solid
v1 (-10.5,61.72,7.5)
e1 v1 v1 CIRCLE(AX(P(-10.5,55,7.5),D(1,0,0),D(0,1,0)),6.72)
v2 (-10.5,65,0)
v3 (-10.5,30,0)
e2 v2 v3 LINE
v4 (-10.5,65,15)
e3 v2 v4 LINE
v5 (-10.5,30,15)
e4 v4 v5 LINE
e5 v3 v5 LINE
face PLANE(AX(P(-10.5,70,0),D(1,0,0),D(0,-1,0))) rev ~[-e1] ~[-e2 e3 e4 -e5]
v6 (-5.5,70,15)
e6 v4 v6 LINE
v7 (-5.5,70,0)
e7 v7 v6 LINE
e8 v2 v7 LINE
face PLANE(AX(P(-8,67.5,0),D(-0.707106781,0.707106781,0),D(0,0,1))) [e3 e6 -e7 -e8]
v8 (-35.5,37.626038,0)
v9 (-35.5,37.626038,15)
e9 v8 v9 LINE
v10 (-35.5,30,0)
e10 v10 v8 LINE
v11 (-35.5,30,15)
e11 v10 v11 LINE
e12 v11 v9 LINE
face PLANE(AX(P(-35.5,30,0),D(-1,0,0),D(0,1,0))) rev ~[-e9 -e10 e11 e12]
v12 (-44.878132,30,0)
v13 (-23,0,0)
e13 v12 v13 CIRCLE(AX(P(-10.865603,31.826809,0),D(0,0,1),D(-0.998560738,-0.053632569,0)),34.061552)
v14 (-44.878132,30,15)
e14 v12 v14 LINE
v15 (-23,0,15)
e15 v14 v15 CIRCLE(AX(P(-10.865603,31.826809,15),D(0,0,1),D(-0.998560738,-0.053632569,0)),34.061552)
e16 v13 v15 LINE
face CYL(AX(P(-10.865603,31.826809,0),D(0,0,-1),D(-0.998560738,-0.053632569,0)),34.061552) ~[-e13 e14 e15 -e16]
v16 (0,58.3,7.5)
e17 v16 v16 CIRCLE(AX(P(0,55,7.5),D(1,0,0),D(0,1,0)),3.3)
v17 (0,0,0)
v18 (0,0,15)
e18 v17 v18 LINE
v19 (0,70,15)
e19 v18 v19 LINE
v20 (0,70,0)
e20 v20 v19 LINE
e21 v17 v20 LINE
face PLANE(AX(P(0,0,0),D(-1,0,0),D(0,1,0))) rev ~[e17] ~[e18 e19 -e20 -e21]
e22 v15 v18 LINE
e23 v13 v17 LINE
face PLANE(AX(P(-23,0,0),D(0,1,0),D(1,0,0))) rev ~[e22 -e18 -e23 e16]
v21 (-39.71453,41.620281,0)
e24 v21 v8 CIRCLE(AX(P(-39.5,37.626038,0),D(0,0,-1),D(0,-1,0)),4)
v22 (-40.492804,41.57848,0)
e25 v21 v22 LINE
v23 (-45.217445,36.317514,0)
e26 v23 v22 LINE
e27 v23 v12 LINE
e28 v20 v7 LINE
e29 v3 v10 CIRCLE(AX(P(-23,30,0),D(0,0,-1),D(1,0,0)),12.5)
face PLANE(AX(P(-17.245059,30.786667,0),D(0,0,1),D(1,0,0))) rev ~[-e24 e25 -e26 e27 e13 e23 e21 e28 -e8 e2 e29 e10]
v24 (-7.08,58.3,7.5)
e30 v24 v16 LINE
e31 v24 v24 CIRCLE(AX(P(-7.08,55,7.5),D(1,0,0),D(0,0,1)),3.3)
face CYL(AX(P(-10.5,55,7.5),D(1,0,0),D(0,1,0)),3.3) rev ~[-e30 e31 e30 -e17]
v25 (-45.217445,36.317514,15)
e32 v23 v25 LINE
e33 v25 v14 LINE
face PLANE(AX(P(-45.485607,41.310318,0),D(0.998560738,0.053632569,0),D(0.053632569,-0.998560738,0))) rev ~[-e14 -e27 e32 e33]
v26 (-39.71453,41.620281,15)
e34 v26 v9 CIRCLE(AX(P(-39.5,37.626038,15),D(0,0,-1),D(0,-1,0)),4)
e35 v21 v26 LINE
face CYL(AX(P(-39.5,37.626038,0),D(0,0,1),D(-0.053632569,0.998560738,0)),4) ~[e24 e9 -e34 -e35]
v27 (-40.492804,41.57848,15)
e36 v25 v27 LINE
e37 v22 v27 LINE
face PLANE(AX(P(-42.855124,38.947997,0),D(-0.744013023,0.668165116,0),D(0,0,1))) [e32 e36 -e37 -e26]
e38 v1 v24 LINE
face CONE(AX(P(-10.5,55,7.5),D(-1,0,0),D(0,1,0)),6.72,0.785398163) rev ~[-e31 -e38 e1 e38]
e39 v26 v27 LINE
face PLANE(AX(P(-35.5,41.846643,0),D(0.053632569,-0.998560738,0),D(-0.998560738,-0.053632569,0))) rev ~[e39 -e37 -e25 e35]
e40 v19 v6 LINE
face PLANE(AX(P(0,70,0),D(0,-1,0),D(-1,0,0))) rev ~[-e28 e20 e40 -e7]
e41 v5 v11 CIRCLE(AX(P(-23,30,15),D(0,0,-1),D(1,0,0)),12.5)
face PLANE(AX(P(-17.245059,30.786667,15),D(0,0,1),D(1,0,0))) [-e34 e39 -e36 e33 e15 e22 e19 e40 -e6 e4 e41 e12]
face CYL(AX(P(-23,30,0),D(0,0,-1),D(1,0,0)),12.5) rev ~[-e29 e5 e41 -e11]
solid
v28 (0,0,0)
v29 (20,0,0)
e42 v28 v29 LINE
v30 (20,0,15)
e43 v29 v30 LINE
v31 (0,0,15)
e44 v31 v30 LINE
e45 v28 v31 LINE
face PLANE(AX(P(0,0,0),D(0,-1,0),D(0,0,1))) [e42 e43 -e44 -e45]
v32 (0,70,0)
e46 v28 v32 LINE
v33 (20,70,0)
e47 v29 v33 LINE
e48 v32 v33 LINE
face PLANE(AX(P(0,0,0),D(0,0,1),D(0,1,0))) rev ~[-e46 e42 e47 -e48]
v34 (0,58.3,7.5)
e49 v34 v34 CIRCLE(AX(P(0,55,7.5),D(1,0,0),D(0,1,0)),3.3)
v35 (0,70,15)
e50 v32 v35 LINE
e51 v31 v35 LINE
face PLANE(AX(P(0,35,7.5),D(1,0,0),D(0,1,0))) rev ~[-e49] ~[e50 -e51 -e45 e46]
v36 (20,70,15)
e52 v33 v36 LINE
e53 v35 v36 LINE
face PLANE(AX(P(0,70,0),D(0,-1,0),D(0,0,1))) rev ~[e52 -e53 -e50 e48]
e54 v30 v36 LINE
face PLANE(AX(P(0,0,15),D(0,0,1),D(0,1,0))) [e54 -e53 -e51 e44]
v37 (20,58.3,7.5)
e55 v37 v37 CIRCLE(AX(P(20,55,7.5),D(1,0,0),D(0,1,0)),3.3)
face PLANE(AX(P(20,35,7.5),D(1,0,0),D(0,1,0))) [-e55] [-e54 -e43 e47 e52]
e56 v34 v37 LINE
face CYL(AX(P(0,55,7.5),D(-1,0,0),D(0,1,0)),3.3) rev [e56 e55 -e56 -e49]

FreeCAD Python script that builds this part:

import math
import FreeCAD as App
import Part
import Sketcher
from FreeCAD import Vector


def edges_at(feature, points):
    """Names of the edges that pass closest to the given points."""
    edges = feature.Shape.Edges
    near = lambda p: min(range(len(edges)), key=lambda i: edges[i].distToShape(Part.Vertex(*p))[0])
    return sorted({f"Edge{near(p) + 1}" for p in points})

doc = App.newDocument("Part")
body = doc.addObject("PartDesign::Body", "Body")

sketch1 = doc.addObject("Sketcher::SketchObject", "Sketch")
body.addObject(sketch1)
sketch1.AttachmentSupport = (doc.XY_Plane, [""])
sketch1.MapMode = "FlatFace"
sketch1.addGeometry([
    Part.LineSegment(Vector(-23, 0, 0), Vector(0, 0, 0)),
    Part.LineSegment(Vector(0, 0, 0), Vector(0, 70, 0)),
    Part.LineSegment(Vector(0, 70, 0), Vector(-10, 70, 0)),
    Part.LineSegment(Vector(-10, 70, 0), Vector(-10, 30, 0)),
    Part.ArcOfCircle(Part.Circle(Vector(-23, 30, 0), Vector(0, 0, 1), 12), math.radians(180), math.radians(360)),
    Part.LineSegment(Vector(-36, 30, 0), Vector(-36, 42, 0)),
    Part.LineSegment(Vector(-36, 42, 0), Vector(-45, 41, 0)),
    Part.LineSegment(Vector(-45, 41, 0), Vector(-45, 30, 0)),
    Part.ArcOfCircle(Part.Circle(Vector(-11, 32, 0), Vector(0, 0, 1), 34), math.radians(-177), math.radians(-111)),
], False)
sketch1.addConstraint([
    Sketcher.Constraint("Coincident", 0, 2, 1, 1),
    Sketcher.Constraint("Coincident", 1, 2, 2, 1),
    Sketcher.Constraint("Coincident", 2, 2, 3, 1),
    Sketcher.Constraint("Tangent", 3, 2, 4, 2),
    Sketcher.Constraint("Tangent", 4, 1, 5, 1),
    Sketcher.Constraint("Coincident", 5, 2, 6, 1),
    Sketcher.Constraint("Coincident", 6, 2, 7, 1),
    Sketcher.Constraint("Tangent", 7, 2, 8, 1),
    Sketcher.Constraint("Coincident", 8, 2, 0, 1),
    Sketcher.Constraint("Horizontal", 0),
    Sketcher.Constraint("Vertical", 1),
    Sketcher.Constraint("Horizontal", 2),
    Sketcher.Constraint("Vertical", 3),
    Sketcher.Constraint("Vertical", 5),
    Sketcher.Constraint("Coincident", 0, 2, -1, 1),
    Sketcher.Constraint("Perpendicular", 6, 7),
    Sketcher.Constraint("Horizontal", 4, 1, 7, 2),
    Sketcher.Constraint("Vertical", 4, 3, 8, 2),
    Sketcher.Constraint("Radius", 4, 12.5),
    Sketcher.Constraint("DistanceX", 0, 1, 0, 2, 23.0),
    Sketcher.Constraint("DistanceY", 1, 1, 1, 2, 70.0),
    Sketcher.Constraint("DistanceY", 3, 2, 3, 1, 40.0),
    Sketcher.Constraint("Distance", 6, 10.0),
    Sketcher.Constraint("Radius", 8, 34.061552),
    Sketcher.Constraint("Distance", 7, 11.32662),
])
pad1 = doc.addObject("PartDesign::Pad", "Pad")
body.addObject(pad1)
pad1.Profile = sketch1
pad1.Length = 15

sketch2 = doc.addObject("Sketcher::SketchObject", "Sketch001")
body.addObject(sketch2)
sketch2.AttachmentSupport = (doc.YZ_Plane, [""])
sketch2.MapMode = "FlatFace"
sketch2.AttachmentOffset = App.Placement(Vector(0, 0, -10.5), App.Rotation())
sketch2.addGeometry(Part.Circle(Vector(55, 7.5, 0), Vector(0, 0, 1), 3.3), False)
sketch2.addConstraint([
    Sketcher.Constraint("Diameter", 0, 6.6),
    Sketcher.Constraint("DistanceX", -1, 1, 0, 3, 55.0),
    Sketcher.Constraint("DistanceY", -1, 1, 0, 3, 7.5),
])
doc.recompute()
hole = doc.addObject("PartDesign::Hole", "Hole")
body.addObject(hole)
hole.Profile = sketch2
hole.ThreadType = "None"
hole.Diameter = 6.6
hole.DepthType = "ThroughAll"
hole.HoleCutType = "Countersink"
hole.HoleCutDiameter = 13.44
hole.HoleCutCountersinkAngle = 90
hole.Reversed = True
doc.recompute()

chamfer = doc.addObject("PartDesign::Chamfer", "Chamfer")
body.addObject(chamfer)
chamfer.Base = (hole, edges_at(hole, [(-10.5, 70, 7.5)]))
chamfer.Size = 5
doc.recompute()

chamfer2 = doc.addObject("PartDesign::Chamfer", "Chamfer001")
body.addObject(chamfer2)
chamfer2.Base = (chamfer, edges_at(chamfer, [(-45.486, 41.31, 7.5)]))
chamfer2.Size = 5
doc.recompute()

fillet = doc.addObject("PartDesign::Fillet", "Fillet")
body.addObject(fillet)
fillet.Base = (chamfer2, edges_at(chamfer2, [(-35.5, 41.847, 7.5)]))
fillet.Radius = 4
body2 = doc.addObject("PartDesign::Body", "Body001")

sketch3 = doc.addObject("Sketcher::SketchObject", "Sketch002")
body2.addObject(sketch3)
sketch3.AttachmentSupport = (doc.getObject("YZ_Plane001"), [""])
sketch3.MapMode = "FlatFace"
sketch3.addGeometry([
    Part.LineSegment(Vector(0, 15, 0), Vector(0, 0, 0)),
    Part.LineSegment(Vector(0, 0, 0), Vector(70, 0, 0)),
    Part.LineSegment(Vector(70, 0, 0), Vector(70, 15, 0)),
    Part.LineSegment(Vector(70, 15, 0), Vector(0, 15, 0)),
    Part.Circle(Vector(55, 7.5, 0), Vector(0, 0, 1), 3.3),
], False)
sketch3.addConstraint([
    Sketcher.Constraint("Coincident", 0, 2, 1, 1),
    Sketcher.Constraint("Coincident", 1, 2, 2, 1),
    Sketcher.Constraint("Coincident", 2, 2, 3, 1),
    Sketcher.Constraint("Coincident", 3, 2, 0, 1),
    Sketcher.Constraint("Vertical", 0),
    Sketcher.Constraint("Horizontal", 1),
    Sketcher.Constraint("Vertical", 2),
    Sketcher.Constraint("Horizontal", 3),
    Sketcher.Constraint("Coincident", 0, 2, -1, 1),
    Sketcher.Constraint("Diameter", 4, 6.6),
    Sketcher.Constraint("DistanceX", 1, 1, 1, 2, 70.0),
    Sketcher.Constraint("DistanceY", 0, 2, 0, 1, 15.0),
    Sketcher.Constraint("DistanceX", -1, 1, 4, 3, 55.0),
    Sketcher.Constraint("DistanceY", -1, 1, 4, 3, 7.5),
])
pad2 = doc.addObject("PartDesign::Pad", "Pad001")
body2.addObject(pad2)
pad2.Profile = sketch3
pad2.Length = 20

doc.recompute()
